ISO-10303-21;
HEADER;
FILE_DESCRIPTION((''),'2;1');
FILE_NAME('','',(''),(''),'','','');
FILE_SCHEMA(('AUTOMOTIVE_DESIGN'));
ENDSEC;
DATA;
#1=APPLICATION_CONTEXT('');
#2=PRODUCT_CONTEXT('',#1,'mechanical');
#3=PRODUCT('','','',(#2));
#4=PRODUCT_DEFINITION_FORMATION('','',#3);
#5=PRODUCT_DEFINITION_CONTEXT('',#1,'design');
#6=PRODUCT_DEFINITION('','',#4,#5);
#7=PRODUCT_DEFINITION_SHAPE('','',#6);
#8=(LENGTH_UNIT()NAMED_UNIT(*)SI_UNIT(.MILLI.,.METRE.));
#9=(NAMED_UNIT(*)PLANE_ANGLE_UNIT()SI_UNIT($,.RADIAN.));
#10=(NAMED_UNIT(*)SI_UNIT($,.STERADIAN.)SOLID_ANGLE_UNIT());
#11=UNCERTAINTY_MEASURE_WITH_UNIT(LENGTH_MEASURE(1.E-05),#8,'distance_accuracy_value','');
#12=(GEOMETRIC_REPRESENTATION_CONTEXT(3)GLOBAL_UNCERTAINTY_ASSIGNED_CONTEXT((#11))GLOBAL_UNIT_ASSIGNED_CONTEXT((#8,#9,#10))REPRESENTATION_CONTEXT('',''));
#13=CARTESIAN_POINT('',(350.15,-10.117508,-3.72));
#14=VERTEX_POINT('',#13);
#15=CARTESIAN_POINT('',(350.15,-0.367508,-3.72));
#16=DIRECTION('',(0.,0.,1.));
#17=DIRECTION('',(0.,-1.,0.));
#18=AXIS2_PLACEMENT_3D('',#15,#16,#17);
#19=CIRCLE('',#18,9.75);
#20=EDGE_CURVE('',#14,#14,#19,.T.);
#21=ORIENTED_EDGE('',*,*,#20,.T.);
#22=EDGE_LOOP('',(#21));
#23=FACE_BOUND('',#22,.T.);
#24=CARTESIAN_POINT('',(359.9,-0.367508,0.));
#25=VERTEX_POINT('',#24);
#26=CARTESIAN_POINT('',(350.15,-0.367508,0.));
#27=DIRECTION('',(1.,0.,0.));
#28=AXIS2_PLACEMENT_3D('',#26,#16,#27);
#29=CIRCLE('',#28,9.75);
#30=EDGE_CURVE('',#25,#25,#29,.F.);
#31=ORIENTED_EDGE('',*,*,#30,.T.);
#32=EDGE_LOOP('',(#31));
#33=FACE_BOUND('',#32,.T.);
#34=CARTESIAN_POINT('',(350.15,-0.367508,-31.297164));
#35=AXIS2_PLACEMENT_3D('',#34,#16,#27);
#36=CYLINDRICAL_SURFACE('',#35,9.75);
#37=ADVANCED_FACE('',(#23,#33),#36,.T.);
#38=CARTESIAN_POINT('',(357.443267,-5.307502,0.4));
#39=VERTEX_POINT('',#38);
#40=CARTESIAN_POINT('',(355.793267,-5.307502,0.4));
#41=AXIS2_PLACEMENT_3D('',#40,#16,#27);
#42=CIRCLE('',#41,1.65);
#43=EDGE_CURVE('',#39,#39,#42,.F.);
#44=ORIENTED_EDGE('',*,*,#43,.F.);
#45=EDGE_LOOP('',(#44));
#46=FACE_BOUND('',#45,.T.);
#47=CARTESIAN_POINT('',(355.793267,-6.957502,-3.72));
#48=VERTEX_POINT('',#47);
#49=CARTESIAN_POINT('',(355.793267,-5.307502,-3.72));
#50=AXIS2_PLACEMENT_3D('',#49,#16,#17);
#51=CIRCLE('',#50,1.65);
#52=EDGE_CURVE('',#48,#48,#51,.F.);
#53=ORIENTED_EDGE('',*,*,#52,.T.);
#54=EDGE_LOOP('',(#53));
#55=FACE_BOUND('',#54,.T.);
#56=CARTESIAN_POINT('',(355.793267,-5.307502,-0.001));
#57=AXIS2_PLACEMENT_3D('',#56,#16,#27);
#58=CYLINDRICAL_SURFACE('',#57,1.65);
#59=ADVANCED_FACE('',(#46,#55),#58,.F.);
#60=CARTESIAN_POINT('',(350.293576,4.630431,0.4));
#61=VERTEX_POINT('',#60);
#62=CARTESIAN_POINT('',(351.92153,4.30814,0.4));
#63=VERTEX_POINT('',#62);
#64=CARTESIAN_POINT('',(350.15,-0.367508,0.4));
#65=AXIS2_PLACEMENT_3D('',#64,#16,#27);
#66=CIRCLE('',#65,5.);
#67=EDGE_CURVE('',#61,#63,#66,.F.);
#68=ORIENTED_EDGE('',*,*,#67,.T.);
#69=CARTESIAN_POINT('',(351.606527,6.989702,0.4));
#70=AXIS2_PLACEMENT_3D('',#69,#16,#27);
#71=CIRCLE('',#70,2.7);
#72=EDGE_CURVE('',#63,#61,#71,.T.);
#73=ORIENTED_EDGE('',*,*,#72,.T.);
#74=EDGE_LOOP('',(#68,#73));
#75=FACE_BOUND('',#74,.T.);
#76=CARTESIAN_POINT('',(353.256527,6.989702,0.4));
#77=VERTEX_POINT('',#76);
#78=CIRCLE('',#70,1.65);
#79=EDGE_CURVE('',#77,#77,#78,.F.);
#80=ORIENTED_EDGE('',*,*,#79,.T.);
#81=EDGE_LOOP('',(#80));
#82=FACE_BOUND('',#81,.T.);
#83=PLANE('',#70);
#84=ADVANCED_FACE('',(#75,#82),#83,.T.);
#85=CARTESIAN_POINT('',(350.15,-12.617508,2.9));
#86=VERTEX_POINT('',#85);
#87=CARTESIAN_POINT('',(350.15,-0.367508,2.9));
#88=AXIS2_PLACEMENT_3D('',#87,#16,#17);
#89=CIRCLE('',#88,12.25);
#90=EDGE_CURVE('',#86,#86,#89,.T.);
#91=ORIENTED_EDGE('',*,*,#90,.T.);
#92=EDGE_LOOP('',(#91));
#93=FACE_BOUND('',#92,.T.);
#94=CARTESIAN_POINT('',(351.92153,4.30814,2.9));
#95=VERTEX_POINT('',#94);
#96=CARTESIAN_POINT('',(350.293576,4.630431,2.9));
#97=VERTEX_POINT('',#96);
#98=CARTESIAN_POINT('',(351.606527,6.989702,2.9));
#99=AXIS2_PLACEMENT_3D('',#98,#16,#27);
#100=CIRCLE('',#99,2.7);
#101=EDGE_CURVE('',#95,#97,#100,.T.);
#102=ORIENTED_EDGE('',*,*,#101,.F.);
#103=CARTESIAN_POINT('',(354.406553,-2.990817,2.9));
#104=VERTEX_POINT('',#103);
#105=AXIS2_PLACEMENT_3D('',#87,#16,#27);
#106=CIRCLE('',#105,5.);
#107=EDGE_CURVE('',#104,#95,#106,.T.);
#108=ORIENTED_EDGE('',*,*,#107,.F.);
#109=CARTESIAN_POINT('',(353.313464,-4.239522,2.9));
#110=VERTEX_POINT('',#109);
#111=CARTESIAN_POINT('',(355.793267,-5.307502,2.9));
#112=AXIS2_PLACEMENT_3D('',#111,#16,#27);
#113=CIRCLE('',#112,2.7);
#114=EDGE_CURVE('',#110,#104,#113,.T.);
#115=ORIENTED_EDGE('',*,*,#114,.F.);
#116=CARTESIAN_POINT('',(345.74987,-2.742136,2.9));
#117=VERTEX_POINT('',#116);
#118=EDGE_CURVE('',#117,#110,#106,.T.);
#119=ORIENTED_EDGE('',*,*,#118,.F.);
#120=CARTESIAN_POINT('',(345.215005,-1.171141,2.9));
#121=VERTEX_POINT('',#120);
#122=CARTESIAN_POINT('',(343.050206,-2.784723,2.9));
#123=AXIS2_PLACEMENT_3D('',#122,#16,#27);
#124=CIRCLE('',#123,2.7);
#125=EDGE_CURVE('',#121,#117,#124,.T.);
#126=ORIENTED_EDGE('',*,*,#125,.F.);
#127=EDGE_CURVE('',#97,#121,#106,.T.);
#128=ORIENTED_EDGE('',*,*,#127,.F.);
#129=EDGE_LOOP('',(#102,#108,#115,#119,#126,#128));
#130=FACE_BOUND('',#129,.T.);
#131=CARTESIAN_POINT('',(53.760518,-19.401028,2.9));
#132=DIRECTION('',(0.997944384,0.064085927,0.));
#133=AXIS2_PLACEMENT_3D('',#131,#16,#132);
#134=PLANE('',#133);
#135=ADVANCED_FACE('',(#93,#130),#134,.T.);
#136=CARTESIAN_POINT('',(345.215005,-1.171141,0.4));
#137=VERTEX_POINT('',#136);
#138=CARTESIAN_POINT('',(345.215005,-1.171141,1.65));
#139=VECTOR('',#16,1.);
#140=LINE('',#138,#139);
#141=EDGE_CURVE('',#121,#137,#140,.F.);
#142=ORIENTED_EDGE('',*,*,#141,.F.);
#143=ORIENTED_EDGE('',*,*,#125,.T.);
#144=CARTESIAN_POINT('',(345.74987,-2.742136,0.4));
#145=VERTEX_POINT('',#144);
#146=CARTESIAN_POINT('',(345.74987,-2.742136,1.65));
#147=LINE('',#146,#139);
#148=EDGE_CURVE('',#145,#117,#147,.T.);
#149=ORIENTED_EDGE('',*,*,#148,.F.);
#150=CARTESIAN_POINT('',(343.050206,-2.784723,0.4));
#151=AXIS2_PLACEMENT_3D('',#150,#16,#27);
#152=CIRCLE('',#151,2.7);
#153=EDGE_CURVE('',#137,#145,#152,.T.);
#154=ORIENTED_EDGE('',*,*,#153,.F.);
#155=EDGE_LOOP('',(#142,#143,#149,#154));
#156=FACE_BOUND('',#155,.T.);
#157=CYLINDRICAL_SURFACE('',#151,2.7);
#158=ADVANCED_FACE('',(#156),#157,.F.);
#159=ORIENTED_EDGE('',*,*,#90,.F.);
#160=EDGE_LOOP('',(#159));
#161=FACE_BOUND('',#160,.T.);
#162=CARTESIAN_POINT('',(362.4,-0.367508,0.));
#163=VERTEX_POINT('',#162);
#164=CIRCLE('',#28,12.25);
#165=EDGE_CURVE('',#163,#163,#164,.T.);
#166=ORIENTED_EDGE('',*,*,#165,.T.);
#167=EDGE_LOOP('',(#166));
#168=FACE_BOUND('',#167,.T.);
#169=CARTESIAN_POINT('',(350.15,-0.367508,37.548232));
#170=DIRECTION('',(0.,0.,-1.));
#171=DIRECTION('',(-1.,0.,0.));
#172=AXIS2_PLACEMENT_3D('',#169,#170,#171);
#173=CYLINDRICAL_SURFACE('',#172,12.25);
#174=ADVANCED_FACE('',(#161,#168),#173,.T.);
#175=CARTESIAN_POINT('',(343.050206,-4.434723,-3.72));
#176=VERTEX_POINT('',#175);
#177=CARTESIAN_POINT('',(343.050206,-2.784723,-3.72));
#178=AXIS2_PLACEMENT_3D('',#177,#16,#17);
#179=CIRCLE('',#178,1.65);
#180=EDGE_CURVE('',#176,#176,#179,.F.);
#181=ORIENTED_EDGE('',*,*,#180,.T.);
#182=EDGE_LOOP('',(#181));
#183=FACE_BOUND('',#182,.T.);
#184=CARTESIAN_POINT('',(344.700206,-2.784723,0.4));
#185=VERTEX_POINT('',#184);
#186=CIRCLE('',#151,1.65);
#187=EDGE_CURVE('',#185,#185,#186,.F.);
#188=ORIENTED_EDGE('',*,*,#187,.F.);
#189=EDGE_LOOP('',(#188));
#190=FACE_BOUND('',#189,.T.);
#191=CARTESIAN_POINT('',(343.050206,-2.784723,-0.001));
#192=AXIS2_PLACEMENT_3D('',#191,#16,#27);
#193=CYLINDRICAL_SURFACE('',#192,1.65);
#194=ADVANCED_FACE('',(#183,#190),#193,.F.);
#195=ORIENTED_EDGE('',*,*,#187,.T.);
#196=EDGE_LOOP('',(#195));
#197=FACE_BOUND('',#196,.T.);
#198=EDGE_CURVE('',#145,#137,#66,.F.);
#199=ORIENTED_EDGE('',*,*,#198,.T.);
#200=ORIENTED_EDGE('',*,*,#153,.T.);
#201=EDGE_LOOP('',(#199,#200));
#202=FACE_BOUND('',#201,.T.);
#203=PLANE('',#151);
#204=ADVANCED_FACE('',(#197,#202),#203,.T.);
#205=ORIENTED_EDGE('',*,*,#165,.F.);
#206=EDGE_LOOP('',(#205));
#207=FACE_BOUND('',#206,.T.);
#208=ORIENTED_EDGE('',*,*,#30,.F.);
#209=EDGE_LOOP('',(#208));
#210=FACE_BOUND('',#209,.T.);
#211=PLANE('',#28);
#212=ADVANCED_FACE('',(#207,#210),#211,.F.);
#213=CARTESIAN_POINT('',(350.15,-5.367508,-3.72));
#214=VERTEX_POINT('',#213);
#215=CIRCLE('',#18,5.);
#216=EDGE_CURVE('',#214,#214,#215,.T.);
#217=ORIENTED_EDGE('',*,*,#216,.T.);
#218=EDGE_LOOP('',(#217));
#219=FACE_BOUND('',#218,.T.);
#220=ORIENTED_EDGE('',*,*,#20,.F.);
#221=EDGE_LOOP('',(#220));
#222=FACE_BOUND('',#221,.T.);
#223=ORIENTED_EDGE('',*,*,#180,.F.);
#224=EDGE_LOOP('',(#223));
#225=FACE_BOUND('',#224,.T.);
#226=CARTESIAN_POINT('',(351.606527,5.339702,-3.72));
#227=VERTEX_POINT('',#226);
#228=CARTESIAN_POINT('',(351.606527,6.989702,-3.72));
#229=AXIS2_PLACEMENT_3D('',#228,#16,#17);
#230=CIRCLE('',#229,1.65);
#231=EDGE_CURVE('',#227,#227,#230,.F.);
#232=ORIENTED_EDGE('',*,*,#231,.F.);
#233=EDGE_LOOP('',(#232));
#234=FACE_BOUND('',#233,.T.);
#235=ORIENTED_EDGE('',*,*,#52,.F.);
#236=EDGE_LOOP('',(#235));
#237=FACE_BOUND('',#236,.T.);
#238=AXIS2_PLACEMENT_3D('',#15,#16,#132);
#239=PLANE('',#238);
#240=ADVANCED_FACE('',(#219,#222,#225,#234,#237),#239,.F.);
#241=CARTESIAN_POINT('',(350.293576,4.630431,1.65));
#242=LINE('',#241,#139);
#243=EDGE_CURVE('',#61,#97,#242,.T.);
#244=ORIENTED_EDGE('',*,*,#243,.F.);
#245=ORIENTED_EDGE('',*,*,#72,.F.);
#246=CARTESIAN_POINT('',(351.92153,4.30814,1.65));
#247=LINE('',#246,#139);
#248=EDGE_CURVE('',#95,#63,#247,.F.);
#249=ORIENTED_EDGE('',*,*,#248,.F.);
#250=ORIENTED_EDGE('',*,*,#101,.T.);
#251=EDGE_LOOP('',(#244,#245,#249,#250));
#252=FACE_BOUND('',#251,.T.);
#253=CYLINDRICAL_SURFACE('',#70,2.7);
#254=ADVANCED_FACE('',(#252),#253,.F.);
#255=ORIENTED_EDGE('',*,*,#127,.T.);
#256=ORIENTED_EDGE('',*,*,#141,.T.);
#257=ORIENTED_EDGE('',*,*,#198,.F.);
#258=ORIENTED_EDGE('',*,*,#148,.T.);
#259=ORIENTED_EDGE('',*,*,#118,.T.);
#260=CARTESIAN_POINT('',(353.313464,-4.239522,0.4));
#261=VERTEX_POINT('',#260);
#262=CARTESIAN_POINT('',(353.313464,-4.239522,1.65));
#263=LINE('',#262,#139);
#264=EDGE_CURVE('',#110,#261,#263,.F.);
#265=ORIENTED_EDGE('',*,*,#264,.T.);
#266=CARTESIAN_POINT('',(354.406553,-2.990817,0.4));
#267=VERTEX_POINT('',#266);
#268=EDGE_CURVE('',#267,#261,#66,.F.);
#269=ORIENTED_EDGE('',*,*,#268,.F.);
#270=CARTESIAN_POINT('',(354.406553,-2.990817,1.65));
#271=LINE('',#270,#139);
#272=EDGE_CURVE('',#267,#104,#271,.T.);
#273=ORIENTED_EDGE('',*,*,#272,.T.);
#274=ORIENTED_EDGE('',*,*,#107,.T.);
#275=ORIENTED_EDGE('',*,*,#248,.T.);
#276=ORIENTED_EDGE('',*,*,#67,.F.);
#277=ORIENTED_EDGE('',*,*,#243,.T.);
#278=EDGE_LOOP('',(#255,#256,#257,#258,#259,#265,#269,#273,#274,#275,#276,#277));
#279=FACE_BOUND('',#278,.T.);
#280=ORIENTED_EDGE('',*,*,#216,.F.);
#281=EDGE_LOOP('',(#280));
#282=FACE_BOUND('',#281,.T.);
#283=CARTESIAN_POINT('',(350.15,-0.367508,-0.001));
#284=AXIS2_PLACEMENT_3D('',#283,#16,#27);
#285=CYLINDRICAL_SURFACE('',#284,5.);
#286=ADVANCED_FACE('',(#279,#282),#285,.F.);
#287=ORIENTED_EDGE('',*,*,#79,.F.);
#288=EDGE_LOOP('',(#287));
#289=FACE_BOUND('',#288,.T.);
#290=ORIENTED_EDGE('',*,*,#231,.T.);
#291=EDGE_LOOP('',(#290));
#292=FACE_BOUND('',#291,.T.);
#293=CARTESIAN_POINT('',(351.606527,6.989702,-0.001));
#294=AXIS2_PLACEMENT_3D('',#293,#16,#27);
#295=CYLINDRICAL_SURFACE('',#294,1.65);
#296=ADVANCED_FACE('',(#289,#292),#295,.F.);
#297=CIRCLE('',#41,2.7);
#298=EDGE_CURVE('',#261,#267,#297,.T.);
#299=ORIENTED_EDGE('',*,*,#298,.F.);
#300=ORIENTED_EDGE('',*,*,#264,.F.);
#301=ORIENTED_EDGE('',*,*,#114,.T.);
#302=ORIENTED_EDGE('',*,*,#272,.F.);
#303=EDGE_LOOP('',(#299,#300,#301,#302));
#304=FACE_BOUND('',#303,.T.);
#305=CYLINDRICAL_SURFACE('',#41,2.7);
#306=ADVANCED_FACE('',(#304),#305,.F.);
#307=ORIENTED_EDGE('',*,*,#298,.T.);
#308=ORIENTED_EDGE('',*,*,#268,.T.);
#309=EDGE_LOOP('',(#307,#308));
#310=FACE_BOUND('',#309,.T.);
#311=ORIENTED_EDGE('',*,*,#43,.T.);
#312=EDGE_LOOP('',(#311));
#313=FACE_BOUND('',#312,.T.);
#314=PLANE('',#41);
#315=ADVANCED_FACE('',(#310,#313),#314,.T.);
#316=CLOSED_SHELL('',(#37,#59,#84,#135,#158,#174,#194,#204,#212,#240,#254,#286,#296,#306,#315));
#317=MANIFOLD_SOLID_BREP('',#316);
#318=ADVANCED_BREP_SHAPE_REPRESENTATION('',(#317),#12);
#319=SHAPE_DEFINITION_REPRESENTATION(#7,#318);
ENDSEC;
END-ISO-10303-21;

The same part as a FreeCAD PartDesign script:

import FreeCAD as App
import Part
import Sketcher

doc = App.newDocument("Part")
body = doc.addObject("PartDesign::Body", "Body")

# Sketch on XY plane
sketch1 = doc.addObject("Sketcher::SketchObject", "Sketch")
body.addObject(sketch1)
sketch1.AttachmentSupport = (doc.XY_Plane, [""])
sketch1.MapMode = "FlatFace"
sketch1.addGeometry(Part.Circle(App.Vector(350.15, -0.367508, 0), App.Vector(0, 0, 1), 12.25), False)
sketch1.addConstraint([
    Sketcher.Constraint("Diameter", 0, 24.5),
    Sketcher.Constraint("DistanceX", -1, 1, 0, 3, 350.15),
    Sketcher.Constraint("DistanceY", 0, 3, -1, 1, 0.367508),
])
pad1 = doc.addObject("PartDesign::Pad", "Pad")
body.addObject(pad1)
pad1.Profile = sketch1
pad1.Length = 2.9

# Sketch on XY plane
sketch2 = doc.addObject("Sketcher::SketchObject", "Sketch001")
body.addObject(sketch2)
sketch2.AttachmentSupport = (doc.XY_Plane, [""])
sketch2.MapMode = "FlatFace"
sketch2.AttachmentOffset = App.Placement(App.Vector(0, 0, 2.9), App.Rotation())
sketch2.addGeometry(Part.Circle(App.Vector(350.15, -0.367508, 0), App.Vector(0, 0, 1), 5), False)
sketch2.addConstraint([
    Sketcher.Constraint("Diameter", 0, 10.0),
    Sketcher.Constraint("DistanceX", -1, 1, 0, 3, 350.15),
    Sketcher.Constraint("DistanceY", 0, 3, -1, 1, 0.367508),
])
pocket1 = doc.addObject("PartDesign::Pocket", "Pocket")
body.addObject(pocket1)
pocket1.Profile = sketch2
pocket1.Type = "UpToFirst"

# Sketch on XY plane
sketch3 = doc.addObject("Sketcher::SketchObject", "Sketch002")
body.addObject(sketch3)
sketch3.AttachmentSupport = (doc.XY_Plane, [""])
sketch3.MapMode = "FlatFace"
sketch3.AttachmentOffset = App.Placement(App.Vector(0, 0, 2.9), App.Rotation())
sketch3.addGeometry(Part.Circle(App.Vector(343.050206, -2.784723, 0), App.Vector(0, 0, 1), 1.65), False)
sketch3.addConstraint([
    Sketcher.Constraint("Diameter", 0, 3.3),
    Sketcher.Constraint("DistanceX", -1, 1, 0, 3, 343.050206),
    Sketcher.Constraint("DistanceY", 0, 3, -1, 1, 2.784723),
])
pocket2 = doc.addObject("PartDesign::Pocket", "Pocket001")
body.addObject(pocket2)
pocket2.Profile = sketch3
pocket2.Type = "UpToFirst"

# Sketch on XY plane
sketch4 = doc.addObject("Sketcher::SketchObject", "Sketch003")
body.addObject(sketch4)
sketch4.AttachmentSupport = (doc.XY_Plane, [""])
sketch4.MapMode = "FlatFace"
sketch4.AttachmentOffset = App.Placement(App.Vector(0, 0, 2.9), App.Rotation())
sketch4.addGeometry(Part.Circle(App.Vector(355.793267, -5.307502, 0), App.Vector(0, 0, 1), 1.65), False)
sketch4.addConstraint([
    Sketcher.Constraint("Diameter", 0, 3.3),
    Sketcher.Constraint("DistanceY", 0, 3, -1, 1, 5.307502),
    Sketcher.Constraint("DistanceX", -1, 1, 0, 3, 355.793267),
])
pocket3 = doc.addObject("PartDesign::Pocket", "Pocket002")
body.addObject(pocket3)
pocket3.Profile = sketch4
pocket3.Type = "UpToFirst"

# Sketch on XY plane
sketch5 = doc.addObject("Sketcher::SketchObject", "Sketch004")
body.addObject(sketch5)
sketch5.AttachmentSupport = (doc.XY_Plane, [""])
sketch5.MapMode = "FlatFace"
sketch5.AttachmentOffset = App.Placement(App.Vector(0, 0, 2.9), App.Rotation())
sketch5.addGeometry(Part.Circle(App.Vector(351.606527, 6.989702, 0), App.Vector(0, 0, 1), 1.65), False)
sketch5.addConstraint([
    Sketcher.Constraint("Diameter", 0, 3.3),
    Sketcher.Constraint("DistanceY", -1, 1, 0, 3, 6.989702),
    Sketcher.Constraint("DistanceX", -1, 1, 0, 3, 351.606527),
])
pocket4 = doc.addObject("PartDesign::Pocket", "Pocket003")
body.addObject(pocket4)
pocket4.Profile = sketch5
pocket4.Type = "UpToFirst"

# Sketch on XY plane
sketch6 = doc.addObject("Sketcher::SketchObject", "Sketch005")
body.addObject(sketch6)
sketch6.AttachmentSupport = (doc.XY_Plane, [""])
sketch6.MapMode = "FlatFace"
sketch6.addGeometry([
    Part.Circle(App.Vector(350.15, -0.367508, 0), App.Vector(0, 0, 1), 9.75),
    Part.Circle(App.Vector(350.15, -0.367508, 0), App.Vector(0, 0, 1), 5),
], False)
sketch6.addConstraint([
    Sketcher.Constraint("Coincident", 1, 3, 0, 3),
    Sketcher.Constraint("Diameter", 1, 10.0),
    Sketcher.Constraint("Diameter", 0, 19.5),
    Sketcher.Constraint("DistanceX", -1, 1, 0, 3, 350.15),
    Sketcher.Constraint("DistanceY", 0, 3, -1, 1, 0.367508),
])
pad2 = doc.addObject("PartDesign::Pad", "Pad001")
body.addObject(pad2)
pad2.Profile = sketch6
pad2.Length = 3.72
pad2.Reversed = True

# Sketch on XY plane
sketch7 = doc.addObject("Sketcher::SketchObject", "Sketch006")
body.addObject(sketch7)
sketch7.AttachmentSupport = (doc.XY_Plane, [""])
sketch7.MapMode = "FlatFace"
sketch7.addGeometry([
    Part.Circle(App.Vector(351.606527, 6.989702, 0), App.Vector(0, 0, 1), 1.65),
    Part.Circle(App.Vector(343.050206, -2.784723, 0), App.Vector(0, 0, 1), 1.65),
    Part.Circle(App.Vector(355.793267, -5.307502, 0), App.Vector(0, 0, 1), 1.65),
], False)
sketch7.addConstraint([
    Sketcher.Constraint("Equal", 0, 1),
    Sketcher.Constraint("Equal", 1, 2),
    Sketcher.Constraint("Diameter", 0, 3.3),
    Sketcher.Constraint("DistanceY", -1, 1, 0, 3, 6.989702),
    Sketcher.Constraint("DistanceY", 2, 3, -1, 1, 5.307502),
    Sketcher.Constraint("DistanceX", 1, 3, 0, 3, 8.556321),
    Sketcher.Constraint("DistanceX", 0, 3, 2, 3, 4.186739),
    Sketcher.Constraint("DistanceY", 2, 3, 1, 3, 2.522779),
    Sketcher.Constraint("DistanceX", -1, 1, 0, 3, 351.606527),
])
pocket5 = doc.addObject("PartDesign::Pocket", "Pocket004")
body.addObject(pocket5)
pocket5.Profile = sketch7
pocket5.Length = 3.72

# Sketch on XY plane
sketch8 = doc.addObject("Sketcher::SketchObject", "Sketch007")
body.addObject(sketch8)
sketch8.AttachmentSupport = (doc.XY_Plane, [""])
sketch8.MapMode = "FlatFace"
sketch8.AttachmentOffset = App.Placement(App.Vector(0, 0, 2.9), App.Rotation())
sketch8.addGeometry([
    Part.Circle(App.Vector(351.606527, 6.989702, 0), App.Vector(0, 0, 1), 2.7),
    Part.Circle(App.Vector(355.793267, -5.307502, 0), App.Vector(0, 0, 1), 2.7),
    Part.Circle(App.Vector(343.050206, -2.784723, 0), App.Vector(0, 0, 1), 2.7),
], False)
sketch8.addConstraint([
    Sketcher.Constraint("Equal", 0, 1),
    Sketcher.Constraint("Equal", 1, 2),
    Sketcher.Constraint("Diameter", 0, 5.4),
    Sketcher.Constraint("DistanceY", -1, 1, 0, 3, 6.989702),
    Sketcher.Constraint("DistanceY", 1, 3, -1, 1, 5.307502),
    Sketcher.Constraint("DistanceX", 0, 3, 1, 3, 4.186739),
    Sketcher.Constraint("DistanceX", 2, 3, 1, 3, 12.74306),
    Sketcher.Constraint("DistanceY", 1, 3, 2, 3, 2.522779),
    Sketcher.Constraint("DistanceX", -1, 1, 0, 3, 351.606527),
])
pocket6 = doc.addObject("PartDesign::Pocket", "Pocket005")
body.addObject(pocket6)
pocket6.Profile = sketch8
pocket6.Length = 2.5

doc.recompute()
